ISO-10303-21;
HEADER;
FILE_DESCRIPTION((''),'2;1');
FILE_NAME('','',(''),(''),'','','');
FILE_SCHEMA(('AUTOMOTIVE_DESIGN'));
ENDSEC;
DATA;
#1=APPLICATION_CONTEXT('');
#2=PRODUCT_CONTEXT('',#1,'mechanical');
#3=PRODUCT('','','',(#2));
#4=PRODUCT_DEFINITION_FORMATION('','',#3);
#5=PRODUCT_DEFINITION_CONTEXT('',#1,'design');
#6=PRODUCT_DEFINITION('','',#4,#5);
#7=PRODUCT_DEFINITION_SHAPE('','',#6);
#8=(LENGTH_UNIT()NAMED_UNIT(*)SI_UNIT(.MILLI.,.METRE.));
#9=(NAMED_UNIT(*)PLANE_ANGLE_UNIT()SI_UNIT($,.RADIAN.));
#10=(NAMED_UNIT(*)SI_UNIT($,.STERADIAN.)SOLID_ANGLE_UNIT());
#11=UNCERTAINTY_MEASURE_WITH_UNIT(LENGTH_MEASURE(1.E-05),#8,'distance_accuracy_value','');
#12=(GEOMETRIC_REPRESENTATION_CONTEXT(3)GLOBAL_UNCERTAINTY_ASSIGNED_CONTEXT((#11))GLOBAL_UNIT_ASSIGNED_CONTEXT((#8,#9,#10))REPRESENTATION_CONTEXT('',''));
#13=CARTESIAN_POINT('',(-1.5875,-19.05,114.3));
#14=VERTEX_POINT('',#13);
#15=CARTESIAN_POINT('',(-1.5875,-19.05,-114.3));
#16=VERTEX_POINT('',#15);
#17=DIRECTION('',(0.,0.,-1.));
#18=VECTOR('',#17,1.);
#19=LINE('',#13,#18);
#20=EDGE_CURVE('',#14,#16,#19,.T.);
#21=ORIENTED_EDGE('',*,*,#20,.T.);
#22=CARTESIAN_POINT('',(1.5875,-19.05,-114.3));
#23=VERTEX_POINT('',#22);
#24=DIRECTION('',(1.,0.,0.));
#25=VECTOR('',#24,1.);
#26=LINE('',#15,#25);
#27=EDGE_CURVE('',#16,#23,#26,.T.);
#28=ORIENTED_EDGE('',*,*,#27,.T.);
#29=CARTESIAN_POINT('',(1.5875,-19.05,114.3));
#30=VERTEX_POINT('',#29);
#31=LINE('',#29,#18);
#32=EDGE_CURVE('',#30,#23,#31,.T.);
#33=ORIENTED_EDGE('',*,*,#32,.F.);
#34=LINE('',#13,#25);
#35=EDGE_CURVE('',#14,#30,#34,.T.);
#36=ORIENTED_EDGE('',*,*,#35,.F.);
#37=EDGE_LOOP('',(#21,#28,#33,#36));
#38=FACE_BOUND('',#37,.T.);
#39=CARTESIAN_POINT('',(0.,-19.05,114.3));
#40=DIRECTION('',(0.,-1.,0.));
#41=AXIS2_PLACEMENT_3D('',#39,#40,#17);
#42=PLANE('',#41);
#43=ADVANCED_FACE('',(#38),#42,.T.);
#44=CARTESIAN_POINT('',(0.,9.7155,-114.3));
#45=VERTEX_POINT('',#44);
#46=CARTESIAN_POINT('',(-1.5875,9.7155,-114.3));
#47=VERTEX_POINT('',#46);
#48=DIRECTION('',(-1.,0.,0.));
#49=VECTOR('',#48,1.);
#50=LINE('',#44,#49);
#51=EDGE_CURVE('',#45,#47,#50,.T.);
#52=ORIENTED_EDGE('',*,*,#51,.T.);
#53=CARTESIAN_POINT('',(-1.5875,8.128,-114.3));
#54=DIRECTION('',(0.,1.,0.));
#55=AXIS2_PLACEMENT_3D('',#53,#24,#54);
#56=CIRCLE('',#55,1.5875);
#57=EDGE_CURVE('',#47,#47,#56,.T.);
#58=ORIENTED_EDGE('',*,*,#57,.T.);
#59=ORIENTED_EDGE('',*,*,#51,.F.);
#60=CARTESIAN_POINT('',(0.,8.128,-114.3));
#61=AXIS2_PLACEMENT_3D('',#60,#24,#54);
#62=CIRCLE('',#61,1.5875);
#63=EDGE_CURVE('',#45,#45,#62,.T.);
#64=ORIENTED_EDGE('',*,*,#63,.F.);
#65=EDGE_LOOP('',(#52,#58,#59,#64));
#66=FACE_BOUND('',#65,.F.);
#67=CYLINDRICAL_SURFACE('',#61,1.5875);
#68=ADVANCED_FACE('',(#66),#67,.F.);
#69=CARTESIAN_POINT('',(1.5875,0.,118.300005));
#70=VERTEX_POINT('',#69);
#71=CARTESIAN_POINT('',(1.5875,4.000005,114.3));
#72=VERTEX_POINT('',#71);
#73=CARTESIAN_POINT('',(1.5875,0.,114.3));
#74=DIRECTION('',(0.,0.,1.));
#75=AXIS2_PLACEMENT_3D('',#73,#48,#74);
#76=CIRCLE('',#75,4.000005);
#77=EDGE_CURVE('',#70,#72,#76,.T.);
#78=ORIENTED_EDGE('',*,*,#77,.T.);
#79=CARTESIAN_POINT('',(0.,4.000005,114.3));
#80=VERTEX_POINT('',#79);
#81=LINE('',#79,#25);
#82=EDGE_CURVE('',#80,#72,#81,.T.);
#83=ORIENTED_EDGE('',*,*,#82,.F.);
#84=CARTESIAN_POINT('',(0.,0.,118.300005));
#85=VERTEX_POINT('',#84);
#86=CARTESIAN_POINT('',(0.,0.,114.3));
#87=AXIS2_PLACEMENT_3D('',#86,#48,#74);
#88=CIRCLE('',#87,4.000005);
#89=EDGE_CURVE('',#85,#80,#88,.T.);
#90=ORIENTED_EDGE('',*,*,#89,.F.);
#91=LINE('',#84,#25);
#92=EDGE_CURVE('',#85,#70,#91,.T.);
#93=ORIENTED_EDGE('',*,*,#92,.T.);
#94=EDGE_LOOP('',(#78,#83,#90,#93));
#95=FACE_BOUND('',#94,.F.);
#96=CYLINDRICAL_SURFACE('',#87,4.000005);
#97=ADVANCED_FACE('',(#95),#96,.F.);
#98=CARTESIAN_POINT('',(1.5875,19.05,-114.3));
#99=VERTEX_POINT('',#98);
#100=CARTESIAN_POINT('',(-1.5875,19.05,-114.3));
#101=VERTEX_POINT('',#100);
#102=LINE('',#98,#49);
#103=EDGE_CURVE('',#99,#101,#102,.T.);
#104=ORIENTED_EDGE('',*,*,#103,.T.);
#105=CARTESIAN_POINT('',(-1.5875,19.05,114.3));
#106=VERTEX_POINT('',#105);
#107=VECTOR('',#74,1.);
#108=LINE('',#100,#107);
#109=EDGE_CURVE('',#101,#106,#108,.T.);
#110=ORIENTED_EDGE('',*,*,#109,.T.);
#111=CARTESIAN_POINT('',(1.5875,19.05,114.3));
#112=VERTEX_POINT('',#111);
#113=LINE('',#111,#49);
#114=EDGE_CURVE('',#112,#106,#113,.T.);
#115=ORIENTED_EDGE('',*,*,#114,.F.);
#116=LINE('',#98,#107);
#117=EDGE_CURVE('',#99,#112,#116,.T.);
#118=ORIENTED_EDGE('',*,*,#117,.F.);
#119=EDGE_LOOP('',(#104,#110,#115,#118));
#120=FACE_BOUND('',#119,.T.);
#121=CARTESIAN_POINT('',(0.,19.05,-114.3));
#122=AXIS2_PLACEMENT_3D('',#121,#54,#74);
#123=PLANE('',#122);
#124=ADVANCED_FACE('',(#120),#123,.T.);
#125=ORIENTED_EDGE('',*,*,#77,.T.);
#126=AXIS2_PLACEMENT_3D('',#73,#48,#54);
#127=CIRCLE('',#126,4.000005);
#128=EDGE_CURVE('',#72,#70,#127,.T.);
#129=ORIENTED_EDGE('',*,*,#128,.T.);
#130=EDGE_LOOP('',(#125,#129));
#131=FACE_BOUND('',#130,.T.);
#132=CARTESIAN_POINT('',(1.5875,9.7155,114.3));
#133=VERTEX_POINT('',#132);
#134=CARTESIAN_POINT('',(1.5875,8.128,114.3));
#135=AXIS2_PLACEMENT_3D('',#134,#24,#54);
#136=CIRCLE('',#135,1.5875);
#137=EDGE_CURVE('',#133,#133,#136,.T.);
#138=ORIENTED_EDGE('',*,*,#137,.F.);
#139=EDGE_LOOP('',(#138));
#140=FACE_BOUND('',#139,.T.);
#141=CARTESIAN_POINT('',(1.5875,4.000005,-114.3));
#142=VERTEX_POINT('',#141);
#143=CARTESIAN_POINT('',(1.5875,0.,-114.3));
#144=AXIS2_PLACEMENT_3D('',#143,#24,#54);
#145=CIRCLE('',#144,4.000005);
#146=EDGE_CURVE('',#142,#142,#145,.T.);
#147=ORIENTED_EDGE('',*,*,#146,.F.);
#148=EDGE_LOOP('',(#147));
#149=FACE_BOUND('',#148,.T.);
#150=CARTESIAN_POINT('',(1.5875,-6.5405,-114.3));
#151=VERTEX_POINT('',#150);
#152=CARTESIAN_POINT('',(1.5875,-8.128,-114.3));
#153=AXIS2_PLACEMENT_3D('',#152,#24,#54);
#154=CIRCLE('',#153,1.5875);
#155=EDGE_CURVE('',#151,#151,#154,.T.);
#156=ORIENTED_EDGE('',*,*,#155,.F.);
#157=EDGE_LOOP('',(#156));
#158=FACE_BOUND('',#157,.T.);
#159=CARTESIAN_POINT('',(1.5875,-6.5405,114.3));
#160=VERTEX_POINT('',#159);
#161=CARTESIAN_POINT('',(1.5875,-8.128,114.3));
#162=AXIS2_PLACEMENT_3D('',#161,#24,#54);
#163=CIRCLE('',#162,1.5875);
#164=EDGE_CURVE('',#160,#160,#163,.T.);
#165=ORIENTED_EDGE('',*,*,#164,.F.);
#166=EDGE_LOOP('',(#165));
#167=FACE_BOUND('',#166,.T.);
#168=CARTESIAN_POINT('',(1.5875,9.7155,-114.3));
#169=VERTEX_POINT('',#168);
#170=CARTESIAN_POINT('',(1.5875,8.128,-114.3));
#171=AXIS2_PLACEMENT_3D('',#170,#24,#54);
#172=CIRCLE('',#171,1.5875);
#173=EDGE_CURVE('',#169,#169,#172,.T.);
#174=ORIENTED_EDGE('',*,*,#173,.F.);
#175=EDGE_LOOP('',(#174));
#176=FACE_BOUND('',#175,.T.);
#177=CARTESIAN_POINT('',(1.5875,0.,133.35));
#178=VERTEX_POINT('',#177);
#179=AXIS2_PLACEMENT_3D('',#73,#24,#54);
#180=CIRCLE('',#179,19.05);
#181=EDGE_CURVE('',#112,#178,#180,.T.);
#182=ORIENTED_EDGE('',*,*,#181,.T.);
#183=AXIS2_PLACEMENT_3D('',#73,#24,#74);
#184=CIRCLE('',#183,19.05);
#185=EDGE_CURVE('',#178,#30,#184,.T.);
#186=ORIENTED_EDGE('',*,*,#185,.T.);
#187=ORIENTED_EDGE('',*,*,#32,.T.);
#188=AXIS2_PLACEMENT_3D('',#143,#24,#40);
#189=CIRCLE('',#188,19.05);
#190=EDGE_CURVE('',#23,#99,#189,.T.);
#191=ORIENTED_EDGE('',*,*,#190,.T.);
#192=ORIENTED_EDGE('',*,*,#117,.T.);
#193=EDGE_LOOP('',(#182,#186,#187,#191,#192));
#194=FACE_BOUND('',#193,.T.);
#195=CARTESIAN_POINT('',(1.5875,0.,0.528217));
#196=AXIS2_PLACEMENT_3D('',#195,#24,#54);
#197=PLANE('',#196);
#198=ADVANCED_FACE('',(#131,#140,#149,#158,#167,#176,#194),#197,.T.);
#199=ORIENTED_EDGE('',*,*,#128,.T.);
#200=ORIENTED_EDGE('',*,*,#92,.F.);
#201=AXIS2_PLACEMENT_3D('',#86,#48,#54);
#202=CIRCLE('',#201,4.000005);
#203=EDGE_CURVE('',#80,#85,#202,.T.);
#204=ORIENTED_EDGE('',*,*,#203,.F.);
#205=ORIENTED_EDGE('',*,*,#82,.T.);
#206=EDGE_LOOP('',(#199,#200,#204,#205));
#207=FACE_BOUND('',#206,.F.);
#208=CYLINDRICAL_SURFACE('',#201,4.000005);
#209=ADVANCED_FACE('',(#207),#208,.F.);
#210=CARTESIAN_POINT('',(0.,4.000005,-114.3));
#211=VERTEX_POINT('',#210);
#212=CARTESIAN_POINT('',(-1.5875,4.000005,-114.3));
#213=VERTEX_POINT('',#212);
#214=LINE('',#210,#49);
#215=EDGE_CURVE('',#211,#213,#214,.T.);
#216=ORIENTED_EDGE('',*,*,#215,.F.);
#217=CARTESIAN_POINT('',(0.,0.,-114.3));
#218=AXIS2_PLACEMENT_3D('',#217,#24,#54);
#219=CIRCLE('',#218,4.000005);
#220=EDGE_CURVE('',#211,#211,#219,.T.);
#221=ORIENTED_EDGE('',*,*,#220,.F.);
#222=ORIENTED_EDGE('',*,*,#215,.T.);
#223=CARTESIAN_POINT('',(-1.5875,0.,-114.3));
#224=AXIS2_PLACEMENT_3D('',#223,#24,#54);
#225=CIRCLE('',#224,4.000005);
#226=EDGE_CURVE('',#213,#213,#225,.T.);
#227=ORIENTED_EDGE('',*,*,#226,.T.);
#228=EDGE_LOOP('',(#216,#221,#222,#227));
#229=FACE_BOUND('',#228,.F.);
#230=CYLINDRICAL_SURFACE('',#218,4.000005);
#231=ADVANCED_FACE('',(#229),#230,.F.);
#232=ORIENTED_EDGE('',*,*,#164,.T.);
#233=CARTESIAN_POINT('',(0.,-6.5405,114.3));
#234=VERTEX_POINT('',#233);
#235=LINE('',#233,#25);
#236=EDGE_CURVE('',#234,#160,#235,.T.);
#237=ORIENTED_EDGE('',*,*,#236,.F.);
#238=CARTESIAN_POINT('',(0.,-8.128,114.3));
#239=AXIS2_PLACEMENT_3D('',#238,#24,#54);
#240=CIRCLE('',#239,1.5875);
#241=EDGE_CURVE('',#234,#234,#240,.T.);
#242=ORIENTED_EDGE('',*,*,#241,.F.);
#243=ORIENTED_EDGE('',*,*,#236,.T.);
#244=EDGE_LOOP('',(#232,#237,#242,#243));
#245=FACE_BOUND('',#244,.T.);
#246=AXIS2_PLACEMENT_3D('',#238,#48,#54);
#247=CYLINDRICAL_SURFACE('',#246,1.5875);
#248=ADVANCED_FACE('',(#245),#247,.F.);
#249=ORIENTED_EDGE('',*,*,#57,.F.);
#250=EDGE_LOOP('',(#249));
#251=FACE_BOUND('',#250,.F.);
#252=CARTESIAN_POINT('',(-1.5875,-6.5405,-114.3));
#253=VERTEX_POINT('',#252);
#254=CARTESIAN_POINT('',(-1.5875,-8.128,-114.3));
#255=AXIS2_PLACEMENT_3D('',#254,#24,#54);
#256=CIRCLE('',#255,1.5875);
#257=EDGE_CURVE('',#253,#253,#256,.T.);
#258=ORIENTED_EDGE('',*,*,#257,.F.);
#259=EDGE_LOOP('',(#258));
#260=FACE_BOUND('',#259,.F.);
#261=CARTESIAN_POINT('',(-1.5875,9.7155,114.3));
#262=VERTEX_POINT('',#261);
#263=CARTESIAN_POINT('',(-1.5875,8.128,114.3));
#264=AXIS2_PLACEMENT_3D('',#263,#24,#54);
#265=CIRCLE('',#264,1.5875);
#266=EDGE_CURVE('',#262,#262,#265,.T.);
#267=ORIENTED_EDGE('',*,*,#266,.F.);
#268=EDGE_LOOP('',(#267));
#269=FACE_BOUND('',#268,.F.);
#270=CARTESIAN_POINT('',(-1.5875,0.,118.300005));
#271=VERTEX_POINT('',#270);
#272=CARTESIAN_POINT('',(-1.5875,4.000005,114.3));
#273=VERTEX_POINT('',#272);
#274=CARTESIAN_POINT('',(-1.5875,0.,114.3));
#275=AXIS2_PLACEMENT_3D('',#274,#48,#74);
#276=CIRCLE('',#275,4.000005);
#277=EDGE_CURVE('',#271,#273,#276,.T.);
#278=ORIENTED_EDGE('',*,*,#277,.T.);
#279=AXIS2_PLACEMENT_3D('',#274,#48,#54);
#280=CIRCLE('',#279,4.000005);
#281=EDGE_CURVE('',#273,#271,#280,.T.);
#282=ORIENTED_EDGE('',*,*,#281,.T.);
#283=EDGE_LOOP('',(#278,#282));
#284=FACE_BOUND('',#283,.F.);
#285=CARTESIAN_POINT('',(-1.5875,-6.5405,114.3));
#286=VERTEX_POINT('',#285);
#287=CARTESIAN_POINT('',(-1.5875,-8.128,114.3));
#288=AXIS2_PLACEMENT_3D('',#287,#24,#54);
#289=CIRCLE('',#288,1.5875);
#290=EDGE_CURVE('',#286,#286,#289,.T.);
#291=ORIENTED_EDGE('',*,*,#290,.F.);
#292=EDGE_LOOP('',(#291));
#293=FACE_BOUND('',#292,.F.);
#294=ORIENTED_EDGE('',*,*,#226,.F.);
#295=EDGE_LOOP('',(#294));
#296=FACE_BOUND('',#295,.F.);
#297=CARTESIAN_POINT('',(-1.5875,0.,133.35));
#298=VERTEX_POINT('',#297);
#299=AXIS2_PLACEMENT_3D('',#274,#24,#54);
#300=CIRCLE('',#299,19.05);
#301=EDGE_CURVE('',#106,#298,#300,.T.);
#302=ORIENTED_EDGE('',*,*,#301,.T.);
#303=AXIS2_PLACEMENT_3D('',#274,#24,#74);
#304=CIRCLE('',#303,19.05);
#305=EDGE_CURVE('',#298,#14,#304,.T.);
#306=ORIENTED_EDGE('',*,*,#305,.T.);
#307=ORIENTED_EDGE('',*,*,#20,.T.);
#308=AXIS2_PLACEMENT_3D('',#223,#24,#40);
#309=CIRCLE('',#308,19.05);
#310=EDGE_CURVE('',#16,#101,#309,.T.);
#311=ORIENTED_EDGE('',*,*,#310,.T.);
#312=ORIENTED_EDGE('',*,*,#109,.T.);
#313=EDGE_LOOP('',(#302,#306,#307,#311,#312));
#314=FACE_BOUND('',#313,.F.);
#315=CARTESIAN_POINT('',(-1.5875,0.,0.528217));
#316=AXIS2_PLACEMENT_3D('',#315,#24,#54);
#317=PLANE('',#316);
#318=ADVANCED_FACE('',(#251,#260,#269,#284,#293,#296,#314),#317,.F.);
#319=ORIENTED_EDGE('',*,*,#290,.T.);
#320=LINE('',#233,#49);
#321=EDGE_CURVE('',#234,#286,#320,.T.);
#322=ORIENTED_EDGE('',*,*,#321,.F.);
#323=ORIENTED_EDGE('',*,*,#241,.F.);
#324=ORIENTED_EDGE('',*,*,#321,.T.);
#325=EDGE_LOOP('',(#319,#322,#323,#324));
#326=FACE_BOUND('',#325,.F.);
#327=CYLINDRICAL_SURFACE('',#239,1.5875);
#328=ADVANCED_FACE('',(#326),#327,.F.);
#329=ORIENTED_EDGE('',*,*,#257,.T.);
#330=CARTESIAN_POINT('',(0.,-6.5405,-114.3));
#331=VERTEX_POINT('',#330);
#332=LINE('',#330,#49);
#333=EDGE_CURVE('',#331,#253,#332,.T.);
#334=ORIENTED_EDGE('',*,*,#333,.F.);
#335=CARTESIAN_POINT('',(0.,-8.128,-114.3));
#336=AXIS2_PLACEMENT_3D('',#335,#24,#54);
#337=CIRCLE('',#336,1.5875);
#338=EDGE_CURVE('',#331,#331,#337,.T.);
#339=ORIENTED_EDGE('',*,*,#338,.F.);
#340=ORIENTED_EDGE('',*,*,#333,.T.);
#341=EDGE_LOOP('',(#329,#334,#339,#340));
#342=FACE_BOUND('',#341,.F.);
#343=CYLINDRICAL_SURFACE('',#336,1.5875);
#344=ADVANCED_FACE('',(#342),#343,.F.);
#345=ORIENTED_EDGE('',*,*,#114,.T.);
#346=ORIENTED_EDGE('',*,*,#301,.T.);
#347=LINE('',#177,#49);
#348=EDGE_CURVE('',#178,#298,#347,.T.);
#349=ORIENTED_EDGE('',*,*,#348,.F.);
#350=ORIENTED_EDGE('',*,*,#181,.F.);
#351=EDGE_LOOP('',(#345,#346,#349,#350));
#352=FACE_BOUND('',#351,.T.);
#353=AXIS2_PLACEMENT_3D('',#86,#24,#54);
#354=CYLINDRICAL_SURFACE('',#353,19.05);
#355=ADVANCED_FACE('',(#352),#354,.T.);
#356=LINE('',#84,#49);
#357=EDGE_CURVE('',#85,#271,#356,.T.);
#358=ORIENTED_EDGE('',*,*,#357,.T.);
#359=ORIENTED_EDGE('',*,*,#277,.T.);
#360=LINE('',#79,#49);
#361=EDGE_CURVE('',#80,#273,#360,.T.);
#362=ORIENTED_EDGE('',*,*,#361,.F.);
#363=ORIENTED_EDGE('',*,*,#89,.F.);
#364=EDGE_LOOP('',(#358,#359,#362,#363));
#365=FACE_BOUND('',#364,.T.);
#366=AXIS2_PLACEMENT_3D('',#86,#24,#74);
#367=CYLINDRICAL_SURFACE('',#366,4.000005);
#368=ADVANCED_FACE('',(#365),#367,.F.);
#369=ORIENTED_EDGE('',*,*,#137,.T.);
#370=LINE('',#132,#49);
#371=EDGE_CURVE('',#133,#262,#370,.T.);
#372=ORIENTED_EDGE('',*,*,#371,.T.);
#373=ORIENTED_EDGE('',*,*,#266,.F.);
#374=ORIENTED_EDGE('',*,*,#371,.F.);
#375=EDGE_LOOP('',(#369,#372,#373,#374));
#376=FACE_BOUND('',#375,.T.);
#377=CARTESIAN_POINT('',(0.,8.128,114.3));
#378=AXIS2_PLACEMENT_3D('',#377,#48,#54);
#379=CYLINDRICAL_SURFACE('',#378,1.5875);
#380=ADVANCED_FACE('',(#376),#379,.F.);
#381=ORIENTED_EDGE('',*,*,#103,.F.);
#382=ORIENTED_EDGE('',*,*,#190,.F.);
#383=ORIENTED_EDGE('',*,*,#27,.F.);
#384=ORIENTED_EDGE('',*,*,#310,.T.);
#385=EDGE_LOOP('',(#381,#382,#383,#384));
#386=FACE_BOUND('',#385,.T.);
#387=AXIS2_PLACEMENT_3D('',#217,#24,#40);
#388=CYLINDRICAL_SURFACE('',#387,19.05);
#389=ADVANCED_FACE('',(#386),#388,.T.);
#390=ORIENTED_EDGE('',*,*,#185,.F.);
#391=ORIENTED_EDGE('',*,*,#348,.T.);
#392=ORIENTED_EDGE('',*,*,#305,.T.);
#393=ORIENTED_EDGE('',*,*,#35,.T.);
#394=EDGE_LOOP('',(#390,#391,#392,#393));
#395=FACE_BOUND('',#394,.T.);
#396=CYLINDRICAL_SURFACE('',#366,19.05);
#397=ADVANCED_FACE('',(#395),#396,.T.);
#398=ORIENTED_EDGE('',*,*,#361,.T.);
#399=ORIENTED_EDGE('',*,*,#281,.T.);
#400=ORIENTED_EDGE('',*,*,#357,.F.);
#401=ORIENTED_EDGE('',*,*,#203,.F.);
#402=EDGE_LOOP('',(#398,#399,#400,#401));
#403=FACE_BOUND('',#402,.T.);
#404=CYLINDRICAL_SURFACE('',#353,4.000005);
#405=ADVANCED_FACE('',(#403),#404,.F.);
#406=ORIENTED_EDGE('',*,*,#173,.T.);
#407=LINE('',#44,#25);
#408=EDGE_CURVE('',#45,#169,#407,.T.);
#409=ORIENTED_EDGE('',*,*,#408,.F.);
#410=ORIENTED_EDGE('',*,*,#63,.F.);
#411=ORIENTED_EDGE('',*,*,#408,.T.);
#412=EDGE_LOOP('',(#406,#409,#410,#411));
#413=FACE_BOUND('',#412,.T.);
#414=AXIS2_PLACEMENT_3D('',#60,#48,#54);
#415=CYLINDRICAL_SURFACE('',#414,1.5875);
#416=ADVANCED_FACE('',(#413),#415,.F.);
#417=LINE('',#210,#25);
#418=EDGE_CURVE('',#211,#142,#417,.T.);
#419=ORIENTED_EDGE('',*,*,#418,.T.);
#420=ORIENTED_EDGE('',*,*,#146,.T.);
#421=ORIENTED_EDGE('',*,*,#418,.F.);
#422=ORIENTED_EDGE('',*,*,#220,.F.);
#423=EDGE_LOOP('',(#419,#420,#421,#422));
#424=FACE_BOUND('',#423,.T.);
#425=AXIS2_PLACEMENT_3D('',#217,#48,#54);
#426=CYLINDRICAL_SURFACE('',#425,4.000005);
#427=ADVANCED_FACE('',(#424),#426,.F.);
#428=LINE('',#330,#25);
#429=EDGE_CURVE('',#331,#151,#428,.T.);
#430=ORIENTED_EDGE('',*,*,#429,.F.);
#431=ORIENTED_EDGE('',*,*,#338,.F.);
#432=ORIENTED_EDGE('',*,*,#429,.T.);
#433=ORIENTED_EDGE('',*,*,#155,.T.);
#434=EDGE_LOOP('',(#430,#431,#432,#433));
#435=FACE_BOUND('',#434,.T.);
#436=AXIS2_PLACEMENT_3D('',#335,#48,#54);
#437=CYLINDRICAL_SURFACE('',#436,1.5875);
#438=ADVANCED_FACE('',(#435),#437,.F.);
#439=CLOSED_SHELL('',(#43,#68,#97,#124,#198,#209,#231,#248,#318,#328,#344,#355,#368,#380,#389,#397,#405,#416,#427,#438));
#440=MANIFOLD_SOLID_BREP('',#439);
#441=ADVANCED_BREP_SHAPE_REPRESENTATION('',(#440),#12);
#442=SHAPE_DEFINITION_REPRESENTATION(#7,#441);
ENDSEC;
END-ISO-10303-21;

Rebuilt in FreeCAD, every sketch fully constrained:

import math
import FreeCAD as App
import Part
import Sketcher
Q = App.Units.Quantity

doc = App.newDocument("Part")
params = doc.addObject("Spreadsheet::Sheet", "Params")
for row, (alias, value) in enumerate([
    ("sketch1_height", "9 in"),
    ("sketch1_radius", "0.75 in"),
    ("sketch1_diameter", "0.125 in"),
    ("pad1_length", "0.125 in"),
], start=1):
    params.set(f"A{row}", alias)
    params.set(f"B{row}", "=" + value)
    params.setAlias(f"B{row}", alias)

body = doc.addObject("PartDesign::Body", "Body")

# Sketch on YZ plane
sketch1 = doc.addObject("Sketcher::SketchObject", "Sketch")
body.addObject(sketch1)
sketch1.AttachmentSupport = (doc.YZ_Plane, [""])
sketch1.MapMode = "FlatFace"
sketch1.addGeometry(Part.ArcOfCircle(Part.Circle(App.Vector(0, 114.3, 0), App.Vector(0, 0, 1), 19.1), math.radians(90), math.radians(180)), False)
sketch1.addGeometry(Part.LineSegment(App.Vector(-19.1, 114.3, 0), App.Vector(-19.1, -114.3, 0)), False)
sketch1.addGeometry(Part.ArcOfCircle(Part.Circle(App.Vector(0, -114.3, 0), App.Vector(0, 0, 1), 19.1), math.radians(180), math.radians(360)), False)
sketch1.addGeometry(Part.LineSegment(App.Vector(19.1, -114.3, 0), App.Vector(19.1, 114.3, 0)), False)
sketch1.addGeometry(Part.ArcOfCircle(Part.Circle(App.Vector(0, 114.3, 0), App.Vector(0, 0, 1), 19.1), math.radians(0), math.radians(90)), False)
sketch1.addGeometry(Part.Circle(App.Vector(-8.1, -114.3, 0), App.Vector(0, 0, 1), 1.6), False)
sketch1.addGeometry(Part.Circle(App.Vector(0, -114.3, 0), App.Vector(0, 0, 1), 4), False)
sketch1.addGeometry(Part.Circle(App.Vector(8.1, -114.3, 0), App.Vector(0, 0, 1), 1.6), False)
sketch1.addGeometry(Part.Circle(App.Vector(-8.1, 114.3, 0), App.Vector(0, 0, 1), 1.6), False)
sketch1.addGeometry(Part.ArcOfCircle(Part.Circle(App.Vector(0, 114.3, 0), App.Vector(0, 0, 1), 4), math.radians(0), math.radians(90)), False)
sketch1.addGeometry(Part.ArcOfCircle(Part.Circle(App.Vector(0, 114.3, 0), App.Vector(0, 0, 1), 4), math.radians(90), math.radians(360)), False)
sketch1.addGeometry(Part.Circle(App.Vector(8.1, 114.3, 0), App.Vector(0, 0, 1), 1.6), False)
sketch1.addConstraint(Sketcher.Constraint("Tangent", 0, 2, 1, 1))
sketch1.addConstraint(Sketcher.Constraint("Tangent", 1, 2, 2, 1))
sketch1.addConstraint(Sketcher.Constraint("Tangent", 2, 2, 3, 1))
sketch1.addConstraint(Sketcher.Constraint("Tangent", 3, 2, 4, 1))
sketch1.addConstraint(Sketcher.Constraint("Tangent", 4, 2, 0, 1))
sketch1.addConstraint(Sketcher.Constraint("Tangent", 9, 1, 10, 2))
sketch1.addConstraint(Sketcher.Constraint("Coincident", 10, 1, 9, 2))
sketch1.addConstraint(Sketcher.Constraint("Vertical", 1))
sketch1.addConstraint(Sketcher.Constraint("Vertical", 3))
sketch1.addConstraint(Sketcher.Constraint("Coincident", 6, 3, 2, 3))
sketch1.addConstraint(Sketcher.Constraint("Coincident", 9, 3, 0, 3))
sketch1.addConstraint(Sketcher.Constraint("Equal", 0, 2))
sketch1.addConstraint(Sketcher.Constraint("Equal", 5, 7))
sketch1.addConstraint(Sketcher.Constraint("Equal", 7, 8))
sketch1.addConstraint(Sketcher.Constraint("Equal", 6, 9))
sketch1.addConstraint(Sketcher.Constraint("Equal", 8, 11))
sketch1.addConstraint(Sketcher.Constraint("Symmetric", 0, 3, 2, 3, -1, 1))
sketch1.addConstraint(Sketcher.Constraint("Symmetric", 7, 3, 8, 3, -1, 1))
sketch1.addConstraint(Sketcher.Constraint("Symmetric", 5, 3, 11, 3, -1, 1))
sketch1.addConstraint(Sketcher.Constraint("Symmetric", 5, 3, 7, 3, -2))
sketch1.addConstraint(Sketcher.Constraint("PointOnObject", 4, 2, -2))
sketch1.addConstraint(Sketcher.Constraint("PointOnObject", 10, 1, -2))
sketch1.addConstraint(Sketcher.Constraint("Horizontal", 2, 3, 5, 3))
sketch1.addConstraint(Sketcher.Constraint("Horizontal", 3, 2, 9, 1))
sketch1.addConstraint(Sketcher.Constraint("DistanceY", 1, 2, 1, 1, Q("9 in")))
sketch1.addConstraint(Sketcher.Constraint("Radius", 0, Q("0.75 in")))
sketch1.addConstraint(Sketcher.Constraint("Diameter", 5, Q("0.125 in")))
sketch1.addConstraint(Sketcher.Constraint("DistanceX", 5, 3, -1, 1, Q("0.32 in")))
sketch1.addConstraint(Sketcher.Constraint("Diameter", 6, 8.000009))
sketch1.setExpression("Constraints[24]", "Params.sketch1_height")
sketch1.setExpression("Constraints[25]", "Params.sketch1_radius")
sketch1.setExpression("Constraints[26]", "Params.sketch1_diameter")
pad1 = doc.addObject("PartDesign::Pad", "Pad")
body.addObject(pad1)
pad1.Profile = sketch1
pad1.setExpression("Length", "Params.pad1_length")
pad1.Midplane = True

doc.recompute()
